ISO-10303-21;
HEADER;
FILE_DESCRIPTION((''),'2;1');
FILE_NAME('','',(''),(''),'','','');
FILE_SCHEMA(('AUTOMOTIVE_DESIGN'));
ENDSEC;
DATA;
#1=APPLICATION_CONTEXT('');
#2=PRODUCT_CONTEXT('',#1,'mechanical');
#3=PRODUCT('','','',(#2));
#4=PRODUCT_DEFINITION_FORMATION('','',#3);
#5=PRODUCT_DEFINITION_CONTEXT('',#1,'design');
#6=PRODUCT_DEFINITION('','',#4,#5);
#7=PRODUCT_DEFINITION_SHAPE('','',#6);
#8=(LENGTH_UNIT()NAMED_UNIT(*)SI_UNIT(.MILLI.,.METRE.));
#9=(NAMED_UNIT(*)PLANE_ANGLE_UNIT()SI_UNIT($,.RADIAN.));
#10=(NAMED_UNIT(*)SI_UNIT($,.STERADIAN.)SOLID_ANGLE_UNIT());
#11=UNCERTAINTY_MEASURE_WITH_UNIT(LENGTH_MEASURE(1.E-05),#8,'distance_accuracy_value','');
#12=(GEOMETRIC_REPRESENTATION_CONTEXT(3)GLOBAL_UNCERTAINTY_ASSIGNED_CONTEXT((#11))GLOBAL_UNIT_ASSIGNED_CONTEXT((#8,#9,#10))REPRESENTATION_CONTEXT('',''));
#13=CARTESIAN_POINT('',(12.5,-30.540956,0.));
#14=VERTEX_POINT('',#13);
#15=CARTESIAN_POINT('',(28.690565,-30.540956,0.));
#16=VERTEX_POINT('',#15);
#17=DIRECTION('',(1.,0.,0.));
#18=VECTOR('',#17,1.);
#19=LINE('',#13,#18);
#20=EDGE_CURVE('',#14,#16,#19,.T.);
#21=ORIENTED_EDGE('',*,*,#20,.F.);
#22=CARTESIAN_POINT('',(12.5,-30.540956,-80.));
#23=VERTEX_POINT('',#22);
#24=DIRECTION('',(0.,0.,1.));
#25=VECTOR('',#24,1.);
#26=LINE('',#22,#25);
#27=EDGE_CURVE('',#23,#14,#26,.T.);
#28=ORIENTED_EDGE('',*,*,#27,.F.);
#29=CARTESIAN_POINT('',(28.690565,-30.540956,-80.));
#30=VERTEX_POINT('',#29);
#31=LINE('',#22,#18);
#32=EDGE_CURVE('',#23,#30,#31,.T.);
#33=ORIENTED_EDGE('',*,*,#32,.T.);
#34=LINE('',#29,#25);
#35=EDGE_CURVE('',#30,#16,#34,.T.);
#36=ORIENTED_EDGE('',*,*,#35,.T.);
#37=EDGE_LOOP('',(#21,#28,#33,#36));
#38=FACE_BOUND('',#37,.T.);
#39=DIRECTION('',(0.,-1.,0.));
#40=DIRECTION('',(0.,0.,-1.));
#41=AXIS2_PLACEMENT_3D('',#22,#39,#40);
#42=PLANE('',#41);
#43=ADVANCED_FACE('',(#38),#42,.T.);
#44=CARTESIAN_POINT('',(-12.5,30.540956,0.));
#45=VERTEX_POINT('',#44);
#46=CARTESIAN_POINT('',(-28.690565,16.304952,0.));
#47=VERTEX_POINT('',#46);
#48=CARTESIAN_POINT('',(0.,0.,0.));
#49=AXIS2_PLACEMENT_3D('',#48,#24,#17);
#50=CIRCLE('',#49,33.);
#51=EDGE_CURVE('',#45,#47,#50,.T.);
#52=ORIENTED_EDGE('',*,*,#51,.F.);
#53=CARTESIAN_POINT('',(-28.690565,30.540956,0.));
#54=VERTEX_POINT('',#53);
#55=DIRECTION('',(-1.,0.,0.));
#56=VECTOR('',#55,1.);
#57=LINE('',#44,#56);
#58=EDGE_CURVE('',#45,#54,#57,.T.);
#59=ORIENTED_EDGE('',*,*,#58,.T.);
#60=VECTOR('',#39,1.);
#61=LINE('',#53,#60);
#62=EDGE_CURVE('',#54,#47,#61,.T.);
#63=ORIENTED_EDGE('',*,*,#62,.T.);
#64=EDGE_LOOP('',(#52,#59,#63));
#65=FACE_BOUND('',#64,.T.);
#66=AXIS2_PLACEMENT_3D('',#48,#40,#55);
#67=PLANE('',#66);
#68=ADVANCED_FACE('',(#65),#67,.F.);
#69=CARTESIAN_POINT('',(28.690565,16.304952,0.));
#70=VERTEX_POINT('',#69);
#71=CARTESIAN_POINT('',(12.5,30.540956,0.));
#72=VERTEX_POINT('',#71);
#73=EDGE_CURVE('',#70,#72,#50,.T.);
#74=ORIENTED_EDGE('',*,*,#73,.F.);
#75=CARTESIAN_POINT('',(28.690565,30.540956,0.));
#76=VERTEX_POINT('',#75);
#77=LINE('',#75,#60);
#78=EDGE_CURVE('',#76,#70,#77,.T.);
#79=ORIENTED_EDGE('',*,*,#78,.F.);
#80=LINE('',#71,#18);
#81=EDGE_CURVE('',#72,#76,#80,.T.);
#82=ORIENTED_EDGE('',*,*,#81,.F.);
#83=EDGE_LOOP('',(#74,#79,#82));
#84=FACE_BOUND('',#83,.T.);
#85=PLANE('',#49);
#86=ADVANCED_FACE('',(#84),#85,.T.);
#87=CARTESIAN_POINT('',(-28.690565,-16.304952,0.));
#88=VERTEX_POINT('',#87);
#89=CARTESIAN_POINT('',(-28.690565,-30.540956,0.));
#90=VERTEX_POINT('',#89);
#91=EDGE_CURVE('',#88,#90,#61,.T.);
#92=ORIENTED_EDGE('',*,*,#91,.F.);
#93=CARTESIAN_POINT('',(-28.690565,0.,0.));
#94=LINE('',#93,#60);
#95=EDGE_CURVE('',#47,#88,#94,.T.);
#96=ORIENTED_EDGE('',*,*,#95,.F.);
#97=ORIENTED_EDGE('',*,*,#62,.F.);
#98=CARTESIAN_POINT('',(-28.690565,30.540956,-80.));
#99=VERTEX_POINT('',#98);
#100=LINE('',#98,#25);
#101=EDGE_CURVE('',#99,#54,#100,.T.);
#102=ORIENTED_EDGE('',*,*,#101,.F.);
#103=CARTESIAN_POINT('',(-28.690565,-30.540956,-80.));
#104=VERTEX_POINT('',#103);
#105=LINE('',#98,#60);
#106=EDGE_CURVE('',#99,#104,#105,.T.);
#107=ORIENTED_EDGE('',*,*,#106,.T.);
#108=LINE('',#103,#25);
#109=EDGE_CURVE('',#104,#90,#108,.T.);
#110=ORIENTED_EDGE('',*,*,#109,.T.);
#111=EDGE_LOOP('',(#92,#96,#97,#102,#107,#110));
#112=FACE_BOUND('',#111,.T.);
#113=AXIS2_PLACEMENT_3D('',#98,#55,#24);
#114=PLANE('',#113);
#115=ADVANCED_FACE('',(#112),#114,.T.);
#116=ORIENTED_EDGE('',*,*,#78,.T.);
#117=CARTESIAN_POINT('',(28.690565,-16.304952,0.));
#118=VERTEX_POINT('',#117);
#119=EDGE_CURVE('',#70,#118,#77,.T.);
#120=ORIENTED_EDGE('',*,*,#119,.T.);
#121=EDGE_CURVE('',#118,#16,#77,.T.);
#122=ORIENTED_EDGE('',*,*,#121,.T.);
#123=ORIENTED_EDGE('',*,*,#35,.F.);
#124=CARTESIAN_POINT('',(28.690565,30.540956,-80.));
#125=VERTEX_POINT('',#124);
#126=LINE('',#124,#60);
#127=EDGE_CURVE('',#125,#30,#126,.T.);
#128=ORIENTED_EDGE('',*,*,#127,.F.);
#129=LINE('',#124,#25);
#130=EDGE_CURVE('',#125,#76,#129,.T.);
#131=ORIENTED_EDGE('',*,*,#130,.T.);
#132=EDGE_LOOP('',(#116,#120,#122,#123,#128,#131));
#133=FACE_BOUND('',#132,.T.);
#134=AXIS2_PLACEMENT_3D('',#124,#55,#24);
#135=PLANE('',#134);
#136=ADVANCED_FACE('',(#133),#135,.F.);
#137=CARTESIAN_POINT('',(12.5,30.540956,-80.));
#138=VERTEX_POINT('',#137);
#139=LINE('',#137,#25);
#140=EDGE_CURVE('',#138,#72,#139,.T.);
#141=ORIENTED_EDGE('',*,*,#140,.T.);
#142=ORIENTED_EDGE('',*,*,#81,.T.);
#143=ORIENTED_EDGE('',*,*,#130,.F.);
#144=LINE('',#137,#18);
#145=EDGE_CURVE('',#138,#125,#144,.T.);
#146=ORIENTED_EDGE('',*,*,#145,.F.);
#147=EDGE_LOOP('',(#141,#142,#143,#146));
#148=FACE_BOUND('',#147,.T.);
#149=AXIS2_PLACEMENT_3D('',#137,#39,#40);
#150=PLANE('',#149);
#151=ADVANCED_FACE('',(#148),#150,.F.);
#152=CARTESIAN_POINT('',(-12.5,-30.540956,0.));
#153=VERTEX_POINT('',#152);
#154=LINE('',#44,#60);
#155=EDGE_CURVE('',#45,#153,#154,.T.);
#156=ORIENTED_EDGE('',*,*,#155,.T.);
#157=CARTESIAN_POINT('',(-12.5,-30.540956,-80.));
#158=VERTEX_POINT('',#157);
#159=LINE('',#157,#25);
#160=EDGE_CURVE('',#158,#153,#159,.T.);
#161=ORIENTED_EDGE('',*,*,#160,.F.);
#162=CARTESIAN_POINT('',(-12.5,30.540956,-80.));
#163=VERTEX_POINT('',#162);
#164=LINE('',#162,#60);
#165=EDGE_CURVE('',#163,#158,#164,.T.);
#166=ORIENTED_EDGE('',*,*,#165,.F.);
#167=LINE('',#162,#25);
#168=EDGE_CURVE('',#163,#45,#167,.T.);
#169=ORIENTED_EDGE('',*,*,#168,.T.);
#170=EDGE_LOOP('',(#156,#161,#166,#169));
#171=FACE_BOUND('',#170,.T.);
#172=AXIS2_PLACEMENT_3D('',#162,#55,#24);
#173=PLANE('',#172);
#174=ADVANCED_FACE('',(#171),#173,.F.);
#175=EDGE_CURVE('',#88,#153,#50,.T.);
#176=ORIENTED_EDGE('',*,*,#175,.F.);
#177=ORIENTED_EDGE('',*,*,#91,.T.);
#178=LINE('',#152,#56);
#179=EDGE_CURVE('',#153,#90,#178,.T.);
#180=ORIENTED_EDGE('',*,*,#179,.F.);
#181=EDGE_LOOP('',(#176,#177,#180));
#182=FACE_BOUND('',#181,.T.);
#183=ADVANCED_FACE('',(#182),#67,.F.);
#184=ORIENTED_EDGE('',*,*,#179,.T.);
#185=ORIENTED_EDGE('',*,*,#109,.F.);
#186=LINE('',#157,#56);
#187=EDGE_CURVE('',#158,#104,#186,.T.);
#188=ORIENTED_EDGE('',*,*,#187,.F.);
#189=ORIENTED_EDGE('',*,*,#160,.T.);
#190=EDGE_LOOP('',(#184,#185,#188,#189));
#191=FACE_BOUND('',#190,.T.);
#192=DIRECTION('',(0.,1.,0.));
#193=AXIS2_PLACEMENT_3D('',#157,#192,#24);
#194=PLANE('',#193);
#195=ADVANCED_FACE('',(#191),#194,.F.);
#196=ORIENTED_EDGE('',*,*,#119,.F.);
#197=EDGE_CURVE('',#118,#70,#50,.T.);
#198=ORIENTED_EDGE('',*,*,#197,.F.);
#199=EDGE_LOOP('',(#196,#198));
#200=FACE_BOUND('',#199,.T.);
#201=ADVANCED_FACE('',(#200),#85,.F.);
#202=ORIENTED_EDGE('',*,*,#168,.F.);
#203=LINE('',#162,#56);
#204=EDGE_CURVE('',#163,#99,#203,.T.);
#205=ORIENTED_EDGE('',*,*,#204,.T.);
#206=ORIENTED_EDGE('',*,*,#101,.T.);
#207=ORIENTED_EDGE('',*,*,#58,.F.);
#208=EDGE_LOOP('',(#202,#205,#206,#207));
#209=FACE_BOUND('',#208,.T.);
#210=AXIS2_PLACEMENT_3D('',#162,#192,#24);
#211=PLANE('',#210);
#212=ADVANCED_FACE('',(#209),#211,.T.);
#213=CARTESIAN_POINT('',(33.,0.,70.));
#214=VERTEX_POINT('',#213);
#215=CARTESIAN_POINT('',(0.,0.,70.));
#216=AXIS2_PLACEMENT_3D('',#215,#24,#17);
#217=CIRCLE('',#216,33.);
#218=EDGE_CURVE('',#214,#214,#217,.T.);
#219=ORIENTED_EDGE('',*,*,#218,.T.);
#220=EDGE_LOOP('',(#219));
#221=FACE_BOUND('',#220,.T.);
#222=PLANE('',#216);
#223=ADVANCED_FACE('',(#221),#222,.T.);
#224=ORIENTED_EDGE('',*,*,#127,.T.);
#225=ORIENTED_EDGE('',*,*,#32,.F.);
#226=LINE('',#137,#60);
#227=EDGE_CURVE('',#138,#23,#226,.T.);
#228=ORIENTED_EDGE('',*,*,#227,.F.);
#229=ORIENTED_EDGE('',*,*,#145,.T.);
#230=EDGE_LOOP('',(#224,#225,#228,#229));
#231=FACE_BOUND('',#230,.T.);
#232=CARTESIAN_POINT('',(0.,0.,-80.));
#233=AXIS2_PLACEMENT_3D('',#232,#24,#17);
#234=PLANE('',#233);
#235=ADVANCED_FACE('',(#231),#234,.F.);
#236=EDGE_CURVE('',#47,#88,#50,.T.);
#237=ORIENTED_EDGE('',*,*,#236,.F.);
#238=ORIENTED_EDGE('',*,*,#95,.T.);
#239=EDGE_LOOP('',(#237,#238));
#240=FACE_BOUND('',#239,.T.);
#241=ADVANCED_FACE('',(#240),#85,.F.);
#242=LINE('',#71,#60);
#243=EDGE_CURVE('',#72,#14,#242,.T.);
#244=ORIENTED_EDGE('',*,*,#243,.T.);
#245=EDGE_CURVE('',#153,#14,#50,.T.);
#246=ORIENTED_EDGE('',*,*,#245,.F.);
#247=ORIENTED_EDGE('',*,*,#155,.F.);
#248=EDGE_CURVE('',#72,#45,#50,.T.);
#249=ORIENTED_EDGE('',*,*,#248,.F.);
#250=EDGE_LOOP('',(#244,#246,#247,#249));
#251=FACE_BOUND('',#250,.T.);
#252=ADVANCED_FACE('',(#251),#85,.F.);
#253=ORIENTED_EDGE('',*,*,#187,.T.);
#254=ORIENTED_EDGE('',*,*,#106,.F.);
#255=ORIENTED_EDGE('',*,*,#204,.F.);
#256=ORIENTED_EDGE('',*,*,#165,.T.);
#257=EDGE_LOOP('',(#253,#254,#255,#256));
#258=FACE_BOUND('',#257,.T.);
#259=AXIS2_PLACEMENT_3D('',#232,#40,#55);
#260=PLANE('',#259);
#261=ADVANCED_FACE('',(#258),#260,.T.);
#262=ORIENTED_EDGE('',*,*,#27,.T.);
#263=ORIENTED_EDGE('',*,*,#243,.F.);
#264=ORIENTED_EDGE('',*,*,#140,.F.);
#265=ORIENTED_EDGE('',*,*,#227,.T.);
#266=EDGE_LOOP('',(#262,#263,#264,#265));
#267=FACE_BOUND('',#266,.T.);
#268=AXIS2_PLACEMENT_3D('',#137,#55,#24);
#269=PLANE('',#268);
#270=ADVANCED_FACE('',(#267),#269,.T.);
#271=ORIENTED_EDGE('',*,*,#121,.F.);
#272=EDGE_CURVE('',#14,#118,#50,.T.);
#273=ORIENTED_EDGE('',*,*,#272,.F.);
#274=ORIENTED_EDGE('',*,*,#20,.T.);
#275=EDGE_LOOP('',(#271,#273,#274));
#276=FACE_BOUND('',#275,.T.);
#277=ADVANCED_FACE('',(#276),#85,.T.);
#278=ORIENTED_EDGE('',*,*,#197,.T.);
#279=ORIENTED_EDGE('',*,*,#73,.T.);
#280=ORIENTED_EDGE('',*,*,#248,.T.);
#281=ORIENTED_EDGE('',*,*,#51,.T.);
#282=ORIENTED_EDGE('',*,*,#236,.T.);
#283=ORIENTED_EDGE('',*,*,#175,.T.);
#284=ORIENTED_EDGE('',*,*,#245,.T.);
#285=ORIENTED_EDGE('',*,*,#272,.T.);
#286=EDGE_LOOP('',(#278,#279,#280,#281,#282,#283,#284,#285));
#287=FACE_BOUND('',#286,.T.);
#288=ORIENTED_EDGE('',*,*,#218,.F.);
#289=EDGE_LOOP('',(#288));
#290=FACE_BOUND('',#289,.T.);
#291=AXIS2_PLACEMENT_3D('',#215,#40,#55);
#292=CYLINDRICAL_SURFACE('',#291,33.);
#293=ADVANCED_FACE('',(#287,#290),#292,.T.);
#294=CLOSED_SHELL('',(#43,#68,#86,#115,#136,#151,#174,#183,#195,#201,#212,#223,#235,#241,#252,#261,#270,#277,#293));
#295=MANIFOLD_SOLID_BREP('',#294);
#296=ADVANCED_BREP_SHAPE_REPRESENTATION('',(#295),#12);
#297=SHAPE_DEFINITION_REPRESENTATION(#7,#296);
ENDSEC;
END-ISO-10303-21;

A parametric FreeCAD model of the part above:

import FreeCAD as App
import Part
import Sketcher

V = App.Vector


def add_polygon(sketch, points):
    """Adds a closed chain of lines whose ends are joined by coincident constraints."""
    first, n = sketch.GeometryCount, len(points)
    for a, b in zip(points, points[1:] + points[:1]):
        sketch.addGeometry(Part.LineSegment(App.Vector(*a, 0), App.Vector(*b, 0)), False)
    for i in range(n):
        sketch.addConstraint(Sketcher.Constraint("Coincident", first + i, 2, first + (i + 1) % n, 1))

doc = App.newDocument("Part")
body = doc.addObject("PartDesign::Body", "Body")

sketch1 = doc.addObject("Sketcher::SketchObject", "Sketch")
body.addObject(sketch1)
sketch1.AttachmentSupport = (doc.XY_Plane, [""])
sketch1.MapMode = "FlatFace"
sketch1.addGeometry(Part.Circle(V(0, 0, 0), V(0, 0, 1), 33), False)
sketch1.addConstraint(Sketcher.Constraint("Coincident", 0, 3, -1, 1))
sketch1.addConstraint(Sketcher.Constraint("Diameter", 0, 66.0))
pad1 = doc.addObject("PartDesign::Pad", "Pad")
body.addObject(pad1)
pad1.Profile = sketch1
pad1.Length = 70

sketch2 = doc.addObject("Sketcher::SketchObject", "Sketch001")
body.addObject(sketch2)
sketch2.AttachmentSupport = (doc.XY_Plane, [""])
sketch2.MapMode = "FlatFace"
add_polygon(sketch2, [(29, 31), (29, -31), (12, -31), (12, 31)])
add_polygon(sketch2, [(-12, 31), (-12, -31), (-29, -31), (-29, 31)])
sketch2.addConstraint(Sketcher.Constraint("Vertical", 0))
sketch2.addConstraint(Sketcher.Constraint("Horizontal", 1))
sketch2.addConstraint(Sketcher.Constraint("Vertical", 2))
sketch2.addConstraint(Sketcher.Constraint("Horizontal", 3))
sketch2.addConstraint(Sketcher.Constraint("Vertical", 4))
sketch2.addConstraint(Sketcher.Constraint("Horizontal", 5))
sketch2.addConstraint(Sketcher.Constraint("Vertical", 6))
sketch2.addConstraint(Sketcher.Constraint("Horizontal", 7))
sketch2.addConstraint(Sketcher.Constraint("Symmetric", 2, 2, 4, 2, -1, 1))
sketch2.addConstraint(Sketcher.Constraint("Symmetric", 0, 2, 6, 2, -1, 1))
sketch2.addConstraint(Sketcher.Constraint("Horizontal", 1, 2, 4, 2))
sketch2.addConstraint(Sketcher.Constraint("DistanceX", 4, 2, 1, 2, 25.0))
sketch2.addConstraint(Sketcher.Constraint("DistanceX", 1, 2, 1, 1, 16.190565))
sketch2.addConstraint(Sketcher.Constraint("DistanceY", 0, 2, 0, 1, 61.081912))
pad2 = doc.addObject("PartDesign::Pad", "Pad001")
body.addObject(pad2)
pad2.Profile = sketch2
pad2.Length = 80
pad2.Reversed = True

doc.recompute()
